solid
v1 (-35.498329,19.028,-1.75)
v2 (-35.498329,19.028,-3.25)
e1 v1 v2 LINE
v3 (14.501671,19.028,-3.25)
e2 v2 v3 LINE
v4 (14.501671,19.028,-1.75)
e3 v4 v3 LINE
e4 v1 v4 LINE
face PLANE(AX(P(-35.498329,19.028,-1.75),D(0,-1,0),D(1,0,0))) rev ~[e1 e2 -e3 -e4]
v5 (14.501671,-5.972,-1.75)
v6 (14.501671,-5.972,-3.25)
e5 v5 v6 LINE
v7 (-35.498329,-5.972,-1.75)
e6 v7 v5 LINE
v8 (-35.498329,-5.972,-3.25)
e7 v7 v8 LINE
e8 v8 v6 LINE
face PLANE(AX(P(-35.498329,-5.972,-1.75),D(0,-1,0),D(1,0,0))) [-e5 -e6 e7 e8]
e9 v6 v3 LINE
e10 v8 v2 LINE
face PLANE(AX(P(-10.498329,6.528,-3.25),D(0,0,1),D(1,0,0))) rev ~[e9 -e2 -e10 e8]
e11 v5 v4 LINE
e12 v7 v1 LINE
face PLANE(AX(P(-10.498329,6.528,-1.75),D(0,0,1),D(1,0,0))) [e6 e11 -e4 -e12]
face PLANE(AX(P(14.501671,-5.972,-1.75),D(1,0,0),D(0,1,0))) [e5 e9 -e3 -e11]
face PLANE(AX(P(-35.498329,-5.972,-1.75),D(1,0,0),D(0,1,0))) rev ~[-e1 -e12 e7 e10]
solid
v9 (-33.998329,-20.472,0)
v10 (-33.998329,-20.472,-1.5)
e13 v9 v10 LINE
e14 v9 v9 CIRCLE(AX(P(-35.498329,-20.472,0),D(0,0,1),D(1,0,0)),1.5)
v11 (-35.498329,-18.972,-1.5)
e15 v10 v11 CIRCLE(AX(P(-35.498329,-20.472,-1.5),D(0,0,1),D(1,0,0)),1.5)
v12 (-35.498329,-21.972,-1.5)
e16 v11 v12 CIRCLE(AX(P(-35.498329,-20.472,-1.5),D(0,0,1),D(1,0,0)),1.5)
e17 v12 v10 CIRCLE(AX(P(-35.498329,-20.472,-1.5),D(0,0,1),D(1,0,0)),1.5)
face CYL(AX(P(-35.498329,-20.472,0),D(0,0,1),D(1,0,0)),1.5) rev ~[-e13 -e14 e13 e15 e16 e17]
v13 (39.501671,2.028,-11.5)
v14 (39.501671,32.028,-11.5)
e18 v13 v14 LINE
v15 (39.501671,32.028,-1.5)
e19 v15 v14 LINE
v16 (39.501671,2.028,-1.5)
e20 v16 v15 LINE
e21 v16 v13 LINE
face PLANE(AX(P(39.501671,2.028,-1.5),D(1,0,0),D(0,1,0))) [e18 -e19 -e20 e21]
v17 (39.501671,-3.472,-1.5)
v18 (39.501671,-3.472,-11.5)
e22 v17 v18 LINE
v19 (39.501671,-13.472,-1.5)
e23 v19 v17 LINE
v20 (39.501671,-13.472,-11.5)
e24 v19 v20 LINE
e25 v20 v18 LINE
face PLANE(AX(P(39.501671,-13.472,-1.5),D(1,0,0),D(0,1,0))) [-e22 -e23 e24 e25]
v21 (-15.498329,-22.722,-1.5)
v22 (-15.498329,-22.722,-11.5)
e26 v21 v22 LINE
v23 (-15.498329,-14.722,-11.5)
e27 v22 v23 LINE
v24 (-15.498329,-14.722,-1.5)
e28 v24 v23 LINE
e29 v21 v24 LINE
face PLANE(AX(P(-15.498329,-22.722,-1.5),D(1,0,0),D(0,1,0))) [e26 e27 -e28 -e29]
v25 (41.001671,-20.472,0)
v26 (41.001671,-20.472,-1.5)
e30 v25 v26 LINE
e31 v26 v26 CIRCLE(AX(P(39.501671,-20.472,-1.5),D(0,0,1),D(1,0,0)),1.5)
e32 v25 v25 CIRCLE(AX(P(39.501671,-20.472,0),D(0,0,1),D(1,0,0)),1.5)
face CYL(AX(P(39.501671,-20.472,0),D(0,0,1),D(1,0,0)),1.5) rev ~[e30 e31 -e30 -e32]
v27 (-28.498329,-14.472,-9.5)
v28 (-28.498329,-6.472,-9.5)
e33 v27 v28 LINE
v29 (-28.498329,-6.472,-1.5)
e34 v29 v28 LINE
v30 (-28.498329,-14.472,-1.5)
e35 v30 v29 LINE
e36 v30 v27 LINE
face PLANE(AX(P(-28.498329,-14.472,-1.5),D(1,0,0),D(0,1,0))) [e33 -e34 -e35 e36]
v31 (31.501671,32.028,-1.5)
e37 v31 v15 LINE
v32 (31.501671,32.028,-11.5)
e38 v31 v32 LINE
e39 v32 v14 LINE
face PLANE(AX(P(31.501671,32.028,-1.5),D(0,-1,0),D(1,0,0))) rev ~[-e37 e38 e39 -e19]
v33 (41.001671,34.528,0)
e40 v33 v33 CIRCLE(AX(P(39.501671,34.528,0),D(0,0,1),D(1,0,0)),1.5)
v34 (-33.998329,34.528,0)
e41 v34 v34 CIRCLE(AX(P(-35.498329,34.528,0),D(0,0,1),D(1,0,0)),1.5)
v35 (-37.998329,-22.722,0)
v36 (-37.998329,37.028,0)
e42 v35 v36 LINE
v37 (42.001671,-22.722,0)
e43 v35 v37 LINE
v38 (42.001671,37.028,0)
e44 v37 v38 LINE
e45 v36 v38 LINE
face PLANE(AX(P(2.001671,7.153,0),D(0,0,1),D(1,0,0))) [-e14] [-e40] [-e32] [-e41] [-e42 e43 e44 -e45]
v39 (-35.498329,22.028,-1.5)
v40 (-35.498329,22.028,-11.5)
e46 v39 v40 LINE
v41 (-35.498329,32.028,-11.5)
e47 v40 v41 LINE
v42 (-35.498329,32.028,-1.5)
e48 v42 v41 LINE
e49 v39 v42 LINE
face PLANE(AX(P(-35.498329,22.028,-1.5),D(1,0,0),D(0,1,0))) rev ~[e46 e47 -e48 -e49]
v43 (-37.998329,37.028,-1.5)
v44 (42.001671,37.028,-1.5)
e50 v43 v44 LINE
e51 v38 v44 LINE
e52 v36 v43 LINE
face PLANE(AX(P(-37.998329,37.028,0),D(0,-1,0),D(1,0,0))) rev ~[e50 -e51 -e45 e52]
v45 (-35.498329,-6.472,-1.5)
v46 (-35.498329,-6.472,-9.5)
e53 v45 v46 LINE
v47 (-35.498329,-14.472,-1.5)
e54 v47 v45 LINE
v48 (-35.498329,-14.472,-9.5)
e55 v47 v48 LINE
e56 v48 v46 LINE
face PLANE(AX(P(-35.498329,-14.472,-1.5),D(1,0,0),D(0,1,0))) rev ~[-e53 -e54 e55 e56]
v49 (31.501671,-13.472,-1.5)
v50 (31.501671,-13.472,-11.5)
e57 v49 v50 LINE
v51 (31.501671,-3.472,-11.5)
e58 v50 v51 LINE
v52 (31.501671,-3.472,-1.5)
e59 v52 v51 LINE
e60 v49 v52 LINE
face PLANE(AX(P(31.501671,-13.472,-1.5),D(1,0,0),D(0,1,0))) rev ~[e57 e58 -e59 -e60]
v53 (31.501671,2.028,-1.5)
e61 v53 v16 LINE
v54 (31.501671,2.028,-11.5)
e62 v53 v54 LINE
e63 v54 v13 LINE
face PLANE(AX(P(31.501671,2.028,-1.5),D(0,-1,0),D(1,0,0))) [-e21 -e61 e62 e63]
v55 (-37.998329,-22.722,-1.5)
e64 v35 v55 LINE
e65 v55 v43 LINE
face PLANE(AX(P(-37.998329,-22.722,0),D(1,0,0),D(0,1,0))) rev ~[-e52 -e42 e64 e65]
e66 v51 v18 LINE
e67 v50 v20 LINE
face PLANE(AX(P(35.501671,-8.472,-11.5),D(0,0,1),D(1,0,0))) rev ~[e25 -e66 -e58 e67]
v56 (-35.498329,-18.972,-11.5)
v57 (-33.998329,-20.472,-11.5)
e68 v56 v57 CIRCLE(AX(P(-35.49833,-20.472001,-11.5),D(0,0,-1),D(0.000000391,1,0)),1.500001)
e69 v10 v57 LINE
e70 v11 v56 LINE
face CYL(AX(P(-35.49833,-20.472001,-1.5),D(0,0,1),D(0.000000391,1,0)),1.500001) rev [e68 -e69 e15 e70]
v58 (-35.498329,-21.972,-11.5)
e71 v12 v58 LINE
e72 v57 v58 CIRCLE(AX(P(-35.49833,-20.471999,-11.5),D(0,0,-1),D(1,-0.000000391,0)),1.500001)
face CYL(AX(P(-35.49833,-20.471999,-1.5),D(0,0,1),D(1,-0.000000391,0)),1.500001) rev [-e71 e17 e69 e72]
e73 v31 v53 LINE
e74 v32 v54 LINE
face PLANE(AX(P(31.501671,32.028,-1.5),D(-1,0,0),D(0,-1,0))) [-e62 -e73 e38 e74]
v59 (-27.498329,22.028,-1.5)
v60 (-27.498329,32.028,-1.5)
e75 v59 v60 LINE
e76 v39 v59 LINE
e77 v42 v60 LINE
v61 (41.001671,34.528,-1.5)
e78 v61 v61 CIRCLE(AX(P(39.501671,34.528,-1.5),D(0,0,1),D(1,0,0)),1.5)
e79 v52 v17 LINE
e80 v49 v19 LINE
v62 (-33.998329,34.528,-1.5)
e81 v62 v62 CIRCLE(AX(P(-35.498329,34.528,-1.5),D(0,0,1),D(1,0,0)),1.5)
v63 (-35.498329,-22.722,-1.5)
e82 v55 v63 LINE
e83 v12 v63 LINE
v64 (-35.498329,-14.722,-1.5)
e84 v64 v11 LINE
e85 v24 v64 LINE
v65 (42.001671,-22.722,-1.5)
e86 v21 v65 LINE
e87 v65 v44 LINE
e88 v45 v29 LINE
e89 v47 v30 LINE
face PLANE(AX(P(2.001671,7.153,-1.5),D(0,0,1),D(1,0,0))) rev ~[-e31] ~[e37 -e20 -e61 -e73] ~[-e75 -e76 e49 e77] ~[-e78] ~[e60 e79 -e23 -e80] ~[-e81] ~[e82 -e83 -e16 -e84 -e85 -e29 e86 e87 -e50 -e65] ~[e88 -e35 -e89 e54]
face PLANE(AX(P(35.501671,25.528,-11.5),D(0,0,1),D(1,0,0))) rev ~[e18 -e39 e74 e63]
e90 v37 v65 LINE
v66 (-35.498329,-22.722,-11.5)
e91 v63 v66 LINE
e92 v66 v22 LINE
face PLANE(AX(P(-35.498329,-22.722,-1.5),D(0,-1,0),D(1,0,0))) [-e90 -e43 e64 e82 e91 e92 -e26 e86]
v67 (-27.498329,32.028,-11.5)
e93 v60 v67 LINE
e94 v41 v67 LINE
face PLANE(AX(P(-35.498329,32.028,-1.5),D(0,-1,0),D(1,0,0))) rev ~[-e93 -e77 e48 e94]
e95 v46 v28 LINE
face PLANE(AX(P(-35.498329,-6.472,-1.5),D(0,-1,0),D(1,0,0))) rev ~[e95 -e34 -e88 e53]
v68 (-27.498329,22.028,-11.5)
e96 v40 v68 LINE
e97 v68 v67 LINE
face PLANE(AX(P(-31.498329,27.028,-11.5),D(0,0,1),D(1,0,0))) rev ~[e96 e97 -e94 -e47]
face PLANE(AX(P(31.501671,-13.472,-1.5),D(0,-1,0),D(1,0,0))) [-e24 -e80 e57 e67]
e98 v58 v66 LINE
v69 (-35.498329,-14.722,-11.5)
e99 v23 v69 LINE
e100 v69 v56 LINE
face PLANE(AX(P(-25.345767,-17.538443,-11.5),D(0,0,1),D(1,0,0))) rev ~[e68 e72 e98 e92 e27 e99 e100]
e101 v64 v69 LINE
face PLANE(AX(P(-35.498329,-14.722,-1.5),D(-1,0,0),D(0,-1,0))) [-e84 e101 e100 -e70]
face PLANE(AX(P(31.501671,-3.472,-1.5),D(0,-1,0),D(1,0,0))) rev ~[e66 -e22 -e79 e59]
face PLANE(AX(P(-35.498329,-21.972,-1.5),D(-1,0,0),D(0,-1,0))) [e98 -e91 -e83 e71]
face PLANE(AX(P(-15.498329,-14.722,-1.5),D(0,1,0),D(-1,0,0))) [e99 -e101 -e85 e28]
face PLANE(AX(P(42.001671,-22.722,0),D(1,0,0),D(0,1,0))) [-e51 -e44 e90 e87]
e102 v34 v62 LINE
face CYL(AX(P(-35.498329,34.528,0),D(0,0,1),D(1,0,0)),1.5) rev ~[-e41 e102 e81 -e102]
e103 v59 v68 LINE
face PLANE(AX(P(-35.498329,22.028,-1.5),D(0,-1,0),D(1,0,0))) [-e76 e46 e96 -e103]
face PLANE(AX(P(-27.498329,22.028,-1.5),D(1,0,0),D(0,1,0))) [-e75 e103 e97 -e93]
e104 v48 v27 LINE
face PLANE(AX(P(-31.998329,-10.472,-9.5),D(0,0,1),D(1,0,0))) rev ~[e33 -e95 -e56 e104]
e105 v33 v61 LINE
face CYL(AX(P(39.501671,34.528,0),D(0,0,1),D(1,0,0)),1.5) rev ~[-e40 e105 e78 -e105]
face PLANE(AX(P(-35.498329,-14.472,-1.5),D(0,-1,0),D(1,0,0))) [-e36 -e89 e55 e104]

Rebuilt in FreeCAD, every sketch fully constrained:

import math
import FreeCAD as App
import Part
import Sketcher

V = App.Vector
Q = App.Units.Quantity

doc = App.newDocument("Part")
params = doc.addObject("Spreadsheet::Sheet", "Params")
for row, (alias, value) in enumerate([
    ("sketch1_diameter", "3 mm"),
    ("sketch1_width", "80 mm"),
    ("sketch1_height", "59.75 mm"),
    ("pad1_length", "1.5 mm"),
    ("sketch2_radius", "1.500001 mm"),
    ("sketch2_width", "8 mm"),
    ("sketch2_width2", "20 mm"),
    ("sketch2_height", "10 mm"),
    ("sketch2_height2", "30 mm"),
    ("pad2_length", "10 mm"),
    ("sketch3_width", "7 mm"),
    ("sketch3_height", "8 mm"),
    ("pad3_length", "8 mm"),
    ("sketch4_width", "50 mm"),
    ("sketch4_height", "25 mm"),
    ("pad4_length", "1.5 mm"),
], start=1):
    params.set(f"A{row}", alias)
    params.set(f"B{row}", "=" + value)
    params.setAlias(f"B{row}", alias)

body = doc.addObject("PartDesign::Body", "Body")

sketch1 = body.newObject("Sketcher::SketchObject", "Sketch")
sketch1.AttachmentSupport = (doc.getObject("XY_Plane"), [""])
sketch1.MapMode = "FlatFace"
sketch1.addGeometry([
    Part.LineSegment(V(-37.998329, 37.028, 0), V(-37.998329, -22.722, 0)),
    Part.LineSegment(V(-37.998329, -22.722, 0), V(42.001671, -22.722, 0)),
    Part.LineSegment(V(42.001671, -22.722, 0), V(42.001671, 37.028, 0)),
    Part.LineSegment(V(42.001671, 37.028, 0), V(-37.998329, 37.028, 0)),
    Part.Circle(V(-35.498329, -20.472, 0), V(0, 0, 1), 1.5),
    Part.Circle(V(39.501671, -20.472, 0), V(0, 0, 1), 1.5),
    Part.Circle(V(-35.498329, 34.528, 0), V(0, 0, 1), 1.5),
    Part.Circle(V(39.501671, 34.528, 0), V(0, 0, 1), 1.5),
], False)
sketch1.addConstraint([
    Sketcher.Constraint("Coincident", 0, 2, 1, 1),
    Sketcher.Constraint("Coincident", 1, 2, 2, 1),
    Sketcher.Constraint("Coincident", 2, 2, 3, 1),
    Sketcher.Constraint("Coincident", 3, 2, 0, 1),
    Sketcher.Constraint("Vertical", 0),
    Sketcher.Constraint("Horizontal", 1),
    Sketcher.Constraint("Vertical", 2),
    Sketcher.Constraint("Horizontal", 3),
    Sketcher.Constraint("Equal", 4, 5),
    Sketcher.Constraint("Equal", 5, 6),
    Sketcher.Constraint("Equal", 6, 7),
    Sketcher.Constraint("Horizontal", 4, 3, 5, 3),
    Sketcher.Constraint("Horizontal", 6, 3, 7, 3),
    Sketcher.Constraint("Vertical", 4, 3, 6, 3),
    Sketcher.Constraint("Vertical", 5, 3, 7, 3),
    Sketcher.Constraint("Diameter", 4, Q("3 mm")),
    Sketcher.Constraint("DistanceX", 1, 1, 1, 2, Q("80 mm")),
    Sketcher.Constraint("DistanceX", 4, 3, 5, 3, Q("75 mm")),
    Sketcher.Constraint("DistanceY", 4, 3, 6, 3, Q("55 mm")),
    Sketcher.Constraint("DistanceY", 0, 2, 0, 1, Q("59.75 mm")),
    Sketcher.Constraint("DistanceX", 0, 2, 4, 3, Q("2.5 mm")),
    Sketcher.Constraint("DistanceY", 7, 3, 2, 2, Q("2.5 mm")),
    Sketcher.Constraint("DistanceY", 4, 3, -1, 1, Q("20.472 mm")),
    Sketcher.Constraint("DistanceX", 4, 3, -1, 1, Q("35.498329 mm")),
])
sketch1.setExpression("Constraints[15]", "Params.sketch1_diameter")
sketch1.setExpression("Constraints[16]", "Params.sketch1_width")
sketch1.setExpression("Constraints[19]", "Params.sketch1_height")
pad1 = body.newObject("PartDesign::Pad", "Pad")
pad1.Profile = sketch1
pad1.setExpression("Length", "Params.pad1_length")
pad1.Reversed = True

sketch2 = body.newObject("Sketcher::SketchObject", "Sketch001")
sketch2.AttachmentSupport = (doc.getObject("XY_Plane"), [""])
sketch2.MapMode = "FlatFace"
sketch2.AttachmentOffset = App.Placement(V(0, 0, -1.5), App.Rotation())
sketch2.addGeometry([
    Part.LineSegment(V(-35.498329, 32.028, 0), V(-35.498329, 22.028, 0)),
    Part.LineSegment(V(-35.498329, 22.028, 0), V(-27.498329, 22.028, 0)),
    Part.LineSegment(V(-27.498329, 22.028, 0), V(-27.498329, 32.028, 0)),
    Part.LineSegment(V(-27.498329, 32.028, 0), V(-35.498329, 32.028, 0)),
    Part.LineSegment(V(31.501671, 32.028, 0), V(31.501671, 2.028, 0)),
    Part.LineSegment(V(31.501671, 2.028, 0), V(39.501671, 2.028, 0)),
    Part.LineSegment(V(39.501671, 2.028, 0), V(39.501671, 32.028, 0)),
    Part.LineSegment(V(39.501671, 32.028, 0), V(31.501671, 32.028, 0)),
    Part.LineSegment(V(31.501671, -3.472, 0), V(31.501671, -13.472, 0)),
    Part.LineSegment(V(31.501671, -13.472, 0), V(39.501671, -13.472, 0)),
    Part.LineSegment(V(39.501671, -13.472, 0), V(39.501671, -3.472, 0)),
    Part.LineSegment(V(39.501671, -3.472, 0), V(31.501671, -3.472, 0)),
    Part.LineSegment(V(-15.498329, -14.722, 0), V(-35.498329, -14.722, 0)),
    Part.LineSegment(V(-35.498329, -14.722, 0), V(-35.498329, -18.972, 0)),
    Part.ArcOfCircle(Part.Circle(V(-35.49833, -20.472001, 0), V(0, 0, 1), 1.500001), math.radians(0.000022), math.radians(89.999978)),
    Part.ArcOfCircle(Part.Circle(V(-35.49833, -20.471999, 0), V(0, 0, 1), 1.500001), math.radians(-89.999978), math.radians(-0.000022)),
    Part.LineSegment(V(-35.498329, -21.972, 0), V(-35.498329, -22.722, 0)),
    Part.LineSegment(V(-35.498329, -22.722, 0), V(-15.498329, -22.722, 0)),
    Part.LineSegment(V(-15.498329, -22.722, 0), V(-15.498329, -14.722, 0)),
], False)
sketch2.addConstraint([
    Sketcher.Constraint("Coincident", 0, 2, 1, 1),
    Sketcher.Constraint("Coincident", 1, 2, 2, 1),
    Sketcher.Constraint("Coincident", 2, 2, 3, 1),
    Sketcher.Constraint("Coincident", 3, 2, 0, 1),
    Sketcher.Constraint("Coincident", 4, 2, 5, 1),
    Sketcher.Constraint("Coincident", 5, 2, 6, 1),
    Sketcher.Constraint("Coincident", 6, 2, 7, 1),
    Sketcher.Constraint("Coincident", 7, 2, 4, 1),
    Sketcher.Constraint("Coincident", 8, 2, 9, 1),
    Sketcher.Constraint("Coincident", 9, 2, 10, 1),
    Sketcher.Constraint("Coincident", 10, 2, 11, 1),
    Sketcher.Constraint("Coincident", 11, 2, 8, 1),
    Sketcher.Constraint("Coincident", 12, 2, 13, 1),
    Sketcher.Constraint("Coincident", 13, 2, 14, 2),
    Sketcher.Constraint("Tangent", 14, 1, 15, 2),
    Sketcher.Constraint("Coincident", 15, 1, 16, 1),
    Sketcher.Constraint("Coincident", 16, 2, 17, 1),
    Sketcher.Constraint("Coincident", 17, 2, 18, 1),
    Sketcher.Constraint("Coincident", 18, 2, 12, 1),
    Sketcher.Constraint("Vertical", 0),
    Sketcher.Constraint("Horizontal", 1),
    Sketcher.Constraint("Vertical", 2),
    Sketcher.Constraint("Horizontal", 3),
    Sketcher.Constraint("Vertical", 4),
    Sketcher.Constraint("Horizontal", 5),
    Sketcher.Constraint("Vertical", 6),
    Sketcher.Constraint("Horizontal", 7),
    Sketcher.Constraint("Vertical", 8),
    Sketcher.Constraint("Horizontal", 9),
    Sketcher.Constraint("Vertical", 10),
    Sketcher.Constraint("Horizontal", 11),
    Sketcher.Constraint("Horizontal", 12),
    Sketcher.Constraint("Vertical", 13),
    Sketcher.Constraint("Vertical", 16),
    Sketcher.Constraint("Horizontal", 17),
    Sketcher.Constraint("Vertical", 18),
    Sketcher.Constraint("Equal", 14, 15),
    Sketcher.Constraint("Horizontal", 3, 2, 6, 2),
    Sketcher.Constraint("Horizontal", 15, 3, 14, 1),
    Sketcher.Constraint("Vertical", 15, 3, 0, 2),
    Sketcher.Constraint("Vertical", 7, 2, 8, 2),
    Sketcher.Constraint("Vertical", 6, 2, 9, 2),
    Sketcher.Constraint("Vertical", 3, 2, 12, 2),
    Sketcher.Constraint("Vertical", 13, 2, 15, 1),
    Sketcher.Constraint("Equal", 3, 5),
    Sketcher.Constraint("Equal", 2, 8),
    Sketcher.Constraint("Equal", 11, 18),
    Sketcher.Constraint("Radius", 14, Q("1.500001 mm")),
    Sketcher.Constraint("DistanceX", 1, 1, 1, 2, Q("8 mm")),
    Sketcher.Constraint("DistanceX", 12, 2, 12, 1, Q("20 mm")),
    Sketcher.Constraint("DistanceY", 0, 2, 0, 1, Q("10 mm")),
    Sketcher.Constraint("DistanceY", 4, 2, 4, 1, Q("30 mm")),
    Sketcher.Constraint("DistanceX", 1, 2, 4, 2, Q("59 mm")),
    Sketcher.Constraint("DistanceY", 15, 3, 8, 2, Q("6.999999 mm")),
    Sketcher.Constraint("DistanceY", 13, 2, 0, 2, Q("41 mm")),
    Sketcher.Constraint("DistanceY", 13, 2, 13, 1, Q("4.25 mm")),
    Sketcher.Constraint("DistanceY", 14, 3, -1, 1, Q("20.472001 mm")),
    Sketcher.Constraint("DistanceX", 14, 3, -1, 1, Q("35.49833 mm")),
])
sketch2.setExpression("Constraints[47]", "Params.sketch2_radius")
sketch2.setExpression("Constraints[48]", "Params.sketch2_width")
sketch2.setExpression("Constraints[49]", "Params.sketch2_width2")
sketch2.setExpression("Constraints[50]", "Params.sketch2_height")
sketch2.setExpression("Constraints[51]", "Params.sketch2_height2")
pad2 = body.newObject("PartDesign::Pad", "Pad001")
pad2.Profile = sketch2
pad2.setExpression("Length", "Params.pad2_length")
pad2.Reversed = True

sketch3 = body.newObject("Sketcher::SketchObject", "Sketch002")
sketch3.AttachmentSupport = (doc.getObject("XY_Plane"), [""])
sketch3.MapMode = "FlatFace"
sketch3.AttachmentOffset = App.Placement(V(0, 0, -1.5), App.Rotation())
sketch3.addGeometry([
    Part.LineSegment(V(-35.498329, -6.472, 0), V(-35.498329, -14.472, 0)),
    Part.LineSegment(V(-35.498329, -14.472, 0), V(-28.498329, -14.472, 0)),
    Part.LineSegment(V(-28.498329, -14.472, 0), V(-28.498329, -6.472, 0)),
    Part.LineSegment(V(-28.498329, -6.472, 0), V(-35.498329, -6.472, 0)),
], False)
sketch3.addConstraint([
    Sketcher.Constraint("Coincident", 0, 2, 1, 1),
    Sketcher.Constraint("Coincident", 1, 2, 2, 1),
    Sketcher.Constraint("Coincident", 2, 2, 3, 1),
    Sketcher.Constraint("Coincident", 3, 2, 0, 1),
    Sketcher.Constraint("Vertical", 0),
    Sketcher.Constraint("Horizontal", 1),
    Sketcher.Constraint("Vertical", 2),
    Sketcher.Constraint("Horizontal", 3),
    Sketcher.Constraint("DistanceX", 1, 1, 1, 2, Q("7 mm")),
    Sketcher.Constraint("DistanceY", 0, 2, 0, 1, Q("8 mm")),
    Sketcher.Constraint("DistanceY", 0, 2, -1, 1, Q("14.472 mm")),
    Sketcher.Constraint("DistanceX", 0, 2, -1, 1, Q("35.498329 mm")),
])
sketch3.setExpression("Constraints[8]", "Params.sketch3_width")
sketch3.setExpression("Constraints[9]", "Params.sketch3_height")
pad3 = body.newObject("PartDesign::Pad", "Pad002")
pad3.Profile = sketch3
pad3.setExpression("Length", "Params.pad3_length")
pad3.Reversed = True
body2 = doc.addObject("PartDesign::Body", "Body001")

sketch4 = body2.newObject("Sketcher::SketchObject", "Sketch003")
sketch4.AttachmentSupport = (doc.getObject("XY_Plane001"), [""])
sketch4.MapMode = "FlatFace"
sketch4.AttachmentOffset = App.Placement(V(0, 0, -1.75), App.Rotation())
sketch4.addGeometry([
    Part.LineSegment(V(-35.498329, 19.028, 0), V(-35.498329, -5.972, 0)),
    Part.LineSegment(V(-35.498329, -5.972, 0), V(14.501671, -5.972, 0)),
    Part.LineSegment(V(14.501671, -5.972, 0), V(14.501671, 19.028, 0)),
    Part.LineSegment(V(14.501671, 19.028, 0), V(-35.498329, 19.028, 0)),
], False)
sketch4.addConstraint([
    Sketcher.Constraint("Coincident", 0, 2, 1, 1),
    Sketcher.Constraint("Coincident", 1, 2, 2, 1),
    Sketcher.Constraint("Coincident", 2, 2, 3, 1),
    Sketcher.Constraint("Coincident", 3, 2, 0, 1),
    Sketcher.Constraint("Vertical", 0),
    Sketcher.Constraint("Horizontal", 1),
    Sketcher.Constraint("Vertical", 2),
    Sketcher.Constraint("Horizontal", 3),
    Sketcher.Constraint("DistanceX", 1, 1, 1, 2, Q("50 mm")),
    Sketcher.Constraint("DistanceY", 0, 2, 0, 1, Q("25 mm")),
    Sketcher.Constraint("DistanceY", 0, 2, -1, 1, Q("5.972 mm")),
    Sketcher.Constraint("DistanceX", 0, 2, -1, 1, Q("35.498329 mm")),
])
sketch4.setExpression("Constraints[8]", "Params.sketch4_width")
sketch4.setExpression("Constraints[9]", "Params.sketch4_height")
pad4 = body2.newObject("PartDesign::Pad", "Pad003")
pad4.Profile = sketch4
pad4.setExpression("Length", "Params.pad4_length")
pad4.Reversed = True

doc.recompute()
